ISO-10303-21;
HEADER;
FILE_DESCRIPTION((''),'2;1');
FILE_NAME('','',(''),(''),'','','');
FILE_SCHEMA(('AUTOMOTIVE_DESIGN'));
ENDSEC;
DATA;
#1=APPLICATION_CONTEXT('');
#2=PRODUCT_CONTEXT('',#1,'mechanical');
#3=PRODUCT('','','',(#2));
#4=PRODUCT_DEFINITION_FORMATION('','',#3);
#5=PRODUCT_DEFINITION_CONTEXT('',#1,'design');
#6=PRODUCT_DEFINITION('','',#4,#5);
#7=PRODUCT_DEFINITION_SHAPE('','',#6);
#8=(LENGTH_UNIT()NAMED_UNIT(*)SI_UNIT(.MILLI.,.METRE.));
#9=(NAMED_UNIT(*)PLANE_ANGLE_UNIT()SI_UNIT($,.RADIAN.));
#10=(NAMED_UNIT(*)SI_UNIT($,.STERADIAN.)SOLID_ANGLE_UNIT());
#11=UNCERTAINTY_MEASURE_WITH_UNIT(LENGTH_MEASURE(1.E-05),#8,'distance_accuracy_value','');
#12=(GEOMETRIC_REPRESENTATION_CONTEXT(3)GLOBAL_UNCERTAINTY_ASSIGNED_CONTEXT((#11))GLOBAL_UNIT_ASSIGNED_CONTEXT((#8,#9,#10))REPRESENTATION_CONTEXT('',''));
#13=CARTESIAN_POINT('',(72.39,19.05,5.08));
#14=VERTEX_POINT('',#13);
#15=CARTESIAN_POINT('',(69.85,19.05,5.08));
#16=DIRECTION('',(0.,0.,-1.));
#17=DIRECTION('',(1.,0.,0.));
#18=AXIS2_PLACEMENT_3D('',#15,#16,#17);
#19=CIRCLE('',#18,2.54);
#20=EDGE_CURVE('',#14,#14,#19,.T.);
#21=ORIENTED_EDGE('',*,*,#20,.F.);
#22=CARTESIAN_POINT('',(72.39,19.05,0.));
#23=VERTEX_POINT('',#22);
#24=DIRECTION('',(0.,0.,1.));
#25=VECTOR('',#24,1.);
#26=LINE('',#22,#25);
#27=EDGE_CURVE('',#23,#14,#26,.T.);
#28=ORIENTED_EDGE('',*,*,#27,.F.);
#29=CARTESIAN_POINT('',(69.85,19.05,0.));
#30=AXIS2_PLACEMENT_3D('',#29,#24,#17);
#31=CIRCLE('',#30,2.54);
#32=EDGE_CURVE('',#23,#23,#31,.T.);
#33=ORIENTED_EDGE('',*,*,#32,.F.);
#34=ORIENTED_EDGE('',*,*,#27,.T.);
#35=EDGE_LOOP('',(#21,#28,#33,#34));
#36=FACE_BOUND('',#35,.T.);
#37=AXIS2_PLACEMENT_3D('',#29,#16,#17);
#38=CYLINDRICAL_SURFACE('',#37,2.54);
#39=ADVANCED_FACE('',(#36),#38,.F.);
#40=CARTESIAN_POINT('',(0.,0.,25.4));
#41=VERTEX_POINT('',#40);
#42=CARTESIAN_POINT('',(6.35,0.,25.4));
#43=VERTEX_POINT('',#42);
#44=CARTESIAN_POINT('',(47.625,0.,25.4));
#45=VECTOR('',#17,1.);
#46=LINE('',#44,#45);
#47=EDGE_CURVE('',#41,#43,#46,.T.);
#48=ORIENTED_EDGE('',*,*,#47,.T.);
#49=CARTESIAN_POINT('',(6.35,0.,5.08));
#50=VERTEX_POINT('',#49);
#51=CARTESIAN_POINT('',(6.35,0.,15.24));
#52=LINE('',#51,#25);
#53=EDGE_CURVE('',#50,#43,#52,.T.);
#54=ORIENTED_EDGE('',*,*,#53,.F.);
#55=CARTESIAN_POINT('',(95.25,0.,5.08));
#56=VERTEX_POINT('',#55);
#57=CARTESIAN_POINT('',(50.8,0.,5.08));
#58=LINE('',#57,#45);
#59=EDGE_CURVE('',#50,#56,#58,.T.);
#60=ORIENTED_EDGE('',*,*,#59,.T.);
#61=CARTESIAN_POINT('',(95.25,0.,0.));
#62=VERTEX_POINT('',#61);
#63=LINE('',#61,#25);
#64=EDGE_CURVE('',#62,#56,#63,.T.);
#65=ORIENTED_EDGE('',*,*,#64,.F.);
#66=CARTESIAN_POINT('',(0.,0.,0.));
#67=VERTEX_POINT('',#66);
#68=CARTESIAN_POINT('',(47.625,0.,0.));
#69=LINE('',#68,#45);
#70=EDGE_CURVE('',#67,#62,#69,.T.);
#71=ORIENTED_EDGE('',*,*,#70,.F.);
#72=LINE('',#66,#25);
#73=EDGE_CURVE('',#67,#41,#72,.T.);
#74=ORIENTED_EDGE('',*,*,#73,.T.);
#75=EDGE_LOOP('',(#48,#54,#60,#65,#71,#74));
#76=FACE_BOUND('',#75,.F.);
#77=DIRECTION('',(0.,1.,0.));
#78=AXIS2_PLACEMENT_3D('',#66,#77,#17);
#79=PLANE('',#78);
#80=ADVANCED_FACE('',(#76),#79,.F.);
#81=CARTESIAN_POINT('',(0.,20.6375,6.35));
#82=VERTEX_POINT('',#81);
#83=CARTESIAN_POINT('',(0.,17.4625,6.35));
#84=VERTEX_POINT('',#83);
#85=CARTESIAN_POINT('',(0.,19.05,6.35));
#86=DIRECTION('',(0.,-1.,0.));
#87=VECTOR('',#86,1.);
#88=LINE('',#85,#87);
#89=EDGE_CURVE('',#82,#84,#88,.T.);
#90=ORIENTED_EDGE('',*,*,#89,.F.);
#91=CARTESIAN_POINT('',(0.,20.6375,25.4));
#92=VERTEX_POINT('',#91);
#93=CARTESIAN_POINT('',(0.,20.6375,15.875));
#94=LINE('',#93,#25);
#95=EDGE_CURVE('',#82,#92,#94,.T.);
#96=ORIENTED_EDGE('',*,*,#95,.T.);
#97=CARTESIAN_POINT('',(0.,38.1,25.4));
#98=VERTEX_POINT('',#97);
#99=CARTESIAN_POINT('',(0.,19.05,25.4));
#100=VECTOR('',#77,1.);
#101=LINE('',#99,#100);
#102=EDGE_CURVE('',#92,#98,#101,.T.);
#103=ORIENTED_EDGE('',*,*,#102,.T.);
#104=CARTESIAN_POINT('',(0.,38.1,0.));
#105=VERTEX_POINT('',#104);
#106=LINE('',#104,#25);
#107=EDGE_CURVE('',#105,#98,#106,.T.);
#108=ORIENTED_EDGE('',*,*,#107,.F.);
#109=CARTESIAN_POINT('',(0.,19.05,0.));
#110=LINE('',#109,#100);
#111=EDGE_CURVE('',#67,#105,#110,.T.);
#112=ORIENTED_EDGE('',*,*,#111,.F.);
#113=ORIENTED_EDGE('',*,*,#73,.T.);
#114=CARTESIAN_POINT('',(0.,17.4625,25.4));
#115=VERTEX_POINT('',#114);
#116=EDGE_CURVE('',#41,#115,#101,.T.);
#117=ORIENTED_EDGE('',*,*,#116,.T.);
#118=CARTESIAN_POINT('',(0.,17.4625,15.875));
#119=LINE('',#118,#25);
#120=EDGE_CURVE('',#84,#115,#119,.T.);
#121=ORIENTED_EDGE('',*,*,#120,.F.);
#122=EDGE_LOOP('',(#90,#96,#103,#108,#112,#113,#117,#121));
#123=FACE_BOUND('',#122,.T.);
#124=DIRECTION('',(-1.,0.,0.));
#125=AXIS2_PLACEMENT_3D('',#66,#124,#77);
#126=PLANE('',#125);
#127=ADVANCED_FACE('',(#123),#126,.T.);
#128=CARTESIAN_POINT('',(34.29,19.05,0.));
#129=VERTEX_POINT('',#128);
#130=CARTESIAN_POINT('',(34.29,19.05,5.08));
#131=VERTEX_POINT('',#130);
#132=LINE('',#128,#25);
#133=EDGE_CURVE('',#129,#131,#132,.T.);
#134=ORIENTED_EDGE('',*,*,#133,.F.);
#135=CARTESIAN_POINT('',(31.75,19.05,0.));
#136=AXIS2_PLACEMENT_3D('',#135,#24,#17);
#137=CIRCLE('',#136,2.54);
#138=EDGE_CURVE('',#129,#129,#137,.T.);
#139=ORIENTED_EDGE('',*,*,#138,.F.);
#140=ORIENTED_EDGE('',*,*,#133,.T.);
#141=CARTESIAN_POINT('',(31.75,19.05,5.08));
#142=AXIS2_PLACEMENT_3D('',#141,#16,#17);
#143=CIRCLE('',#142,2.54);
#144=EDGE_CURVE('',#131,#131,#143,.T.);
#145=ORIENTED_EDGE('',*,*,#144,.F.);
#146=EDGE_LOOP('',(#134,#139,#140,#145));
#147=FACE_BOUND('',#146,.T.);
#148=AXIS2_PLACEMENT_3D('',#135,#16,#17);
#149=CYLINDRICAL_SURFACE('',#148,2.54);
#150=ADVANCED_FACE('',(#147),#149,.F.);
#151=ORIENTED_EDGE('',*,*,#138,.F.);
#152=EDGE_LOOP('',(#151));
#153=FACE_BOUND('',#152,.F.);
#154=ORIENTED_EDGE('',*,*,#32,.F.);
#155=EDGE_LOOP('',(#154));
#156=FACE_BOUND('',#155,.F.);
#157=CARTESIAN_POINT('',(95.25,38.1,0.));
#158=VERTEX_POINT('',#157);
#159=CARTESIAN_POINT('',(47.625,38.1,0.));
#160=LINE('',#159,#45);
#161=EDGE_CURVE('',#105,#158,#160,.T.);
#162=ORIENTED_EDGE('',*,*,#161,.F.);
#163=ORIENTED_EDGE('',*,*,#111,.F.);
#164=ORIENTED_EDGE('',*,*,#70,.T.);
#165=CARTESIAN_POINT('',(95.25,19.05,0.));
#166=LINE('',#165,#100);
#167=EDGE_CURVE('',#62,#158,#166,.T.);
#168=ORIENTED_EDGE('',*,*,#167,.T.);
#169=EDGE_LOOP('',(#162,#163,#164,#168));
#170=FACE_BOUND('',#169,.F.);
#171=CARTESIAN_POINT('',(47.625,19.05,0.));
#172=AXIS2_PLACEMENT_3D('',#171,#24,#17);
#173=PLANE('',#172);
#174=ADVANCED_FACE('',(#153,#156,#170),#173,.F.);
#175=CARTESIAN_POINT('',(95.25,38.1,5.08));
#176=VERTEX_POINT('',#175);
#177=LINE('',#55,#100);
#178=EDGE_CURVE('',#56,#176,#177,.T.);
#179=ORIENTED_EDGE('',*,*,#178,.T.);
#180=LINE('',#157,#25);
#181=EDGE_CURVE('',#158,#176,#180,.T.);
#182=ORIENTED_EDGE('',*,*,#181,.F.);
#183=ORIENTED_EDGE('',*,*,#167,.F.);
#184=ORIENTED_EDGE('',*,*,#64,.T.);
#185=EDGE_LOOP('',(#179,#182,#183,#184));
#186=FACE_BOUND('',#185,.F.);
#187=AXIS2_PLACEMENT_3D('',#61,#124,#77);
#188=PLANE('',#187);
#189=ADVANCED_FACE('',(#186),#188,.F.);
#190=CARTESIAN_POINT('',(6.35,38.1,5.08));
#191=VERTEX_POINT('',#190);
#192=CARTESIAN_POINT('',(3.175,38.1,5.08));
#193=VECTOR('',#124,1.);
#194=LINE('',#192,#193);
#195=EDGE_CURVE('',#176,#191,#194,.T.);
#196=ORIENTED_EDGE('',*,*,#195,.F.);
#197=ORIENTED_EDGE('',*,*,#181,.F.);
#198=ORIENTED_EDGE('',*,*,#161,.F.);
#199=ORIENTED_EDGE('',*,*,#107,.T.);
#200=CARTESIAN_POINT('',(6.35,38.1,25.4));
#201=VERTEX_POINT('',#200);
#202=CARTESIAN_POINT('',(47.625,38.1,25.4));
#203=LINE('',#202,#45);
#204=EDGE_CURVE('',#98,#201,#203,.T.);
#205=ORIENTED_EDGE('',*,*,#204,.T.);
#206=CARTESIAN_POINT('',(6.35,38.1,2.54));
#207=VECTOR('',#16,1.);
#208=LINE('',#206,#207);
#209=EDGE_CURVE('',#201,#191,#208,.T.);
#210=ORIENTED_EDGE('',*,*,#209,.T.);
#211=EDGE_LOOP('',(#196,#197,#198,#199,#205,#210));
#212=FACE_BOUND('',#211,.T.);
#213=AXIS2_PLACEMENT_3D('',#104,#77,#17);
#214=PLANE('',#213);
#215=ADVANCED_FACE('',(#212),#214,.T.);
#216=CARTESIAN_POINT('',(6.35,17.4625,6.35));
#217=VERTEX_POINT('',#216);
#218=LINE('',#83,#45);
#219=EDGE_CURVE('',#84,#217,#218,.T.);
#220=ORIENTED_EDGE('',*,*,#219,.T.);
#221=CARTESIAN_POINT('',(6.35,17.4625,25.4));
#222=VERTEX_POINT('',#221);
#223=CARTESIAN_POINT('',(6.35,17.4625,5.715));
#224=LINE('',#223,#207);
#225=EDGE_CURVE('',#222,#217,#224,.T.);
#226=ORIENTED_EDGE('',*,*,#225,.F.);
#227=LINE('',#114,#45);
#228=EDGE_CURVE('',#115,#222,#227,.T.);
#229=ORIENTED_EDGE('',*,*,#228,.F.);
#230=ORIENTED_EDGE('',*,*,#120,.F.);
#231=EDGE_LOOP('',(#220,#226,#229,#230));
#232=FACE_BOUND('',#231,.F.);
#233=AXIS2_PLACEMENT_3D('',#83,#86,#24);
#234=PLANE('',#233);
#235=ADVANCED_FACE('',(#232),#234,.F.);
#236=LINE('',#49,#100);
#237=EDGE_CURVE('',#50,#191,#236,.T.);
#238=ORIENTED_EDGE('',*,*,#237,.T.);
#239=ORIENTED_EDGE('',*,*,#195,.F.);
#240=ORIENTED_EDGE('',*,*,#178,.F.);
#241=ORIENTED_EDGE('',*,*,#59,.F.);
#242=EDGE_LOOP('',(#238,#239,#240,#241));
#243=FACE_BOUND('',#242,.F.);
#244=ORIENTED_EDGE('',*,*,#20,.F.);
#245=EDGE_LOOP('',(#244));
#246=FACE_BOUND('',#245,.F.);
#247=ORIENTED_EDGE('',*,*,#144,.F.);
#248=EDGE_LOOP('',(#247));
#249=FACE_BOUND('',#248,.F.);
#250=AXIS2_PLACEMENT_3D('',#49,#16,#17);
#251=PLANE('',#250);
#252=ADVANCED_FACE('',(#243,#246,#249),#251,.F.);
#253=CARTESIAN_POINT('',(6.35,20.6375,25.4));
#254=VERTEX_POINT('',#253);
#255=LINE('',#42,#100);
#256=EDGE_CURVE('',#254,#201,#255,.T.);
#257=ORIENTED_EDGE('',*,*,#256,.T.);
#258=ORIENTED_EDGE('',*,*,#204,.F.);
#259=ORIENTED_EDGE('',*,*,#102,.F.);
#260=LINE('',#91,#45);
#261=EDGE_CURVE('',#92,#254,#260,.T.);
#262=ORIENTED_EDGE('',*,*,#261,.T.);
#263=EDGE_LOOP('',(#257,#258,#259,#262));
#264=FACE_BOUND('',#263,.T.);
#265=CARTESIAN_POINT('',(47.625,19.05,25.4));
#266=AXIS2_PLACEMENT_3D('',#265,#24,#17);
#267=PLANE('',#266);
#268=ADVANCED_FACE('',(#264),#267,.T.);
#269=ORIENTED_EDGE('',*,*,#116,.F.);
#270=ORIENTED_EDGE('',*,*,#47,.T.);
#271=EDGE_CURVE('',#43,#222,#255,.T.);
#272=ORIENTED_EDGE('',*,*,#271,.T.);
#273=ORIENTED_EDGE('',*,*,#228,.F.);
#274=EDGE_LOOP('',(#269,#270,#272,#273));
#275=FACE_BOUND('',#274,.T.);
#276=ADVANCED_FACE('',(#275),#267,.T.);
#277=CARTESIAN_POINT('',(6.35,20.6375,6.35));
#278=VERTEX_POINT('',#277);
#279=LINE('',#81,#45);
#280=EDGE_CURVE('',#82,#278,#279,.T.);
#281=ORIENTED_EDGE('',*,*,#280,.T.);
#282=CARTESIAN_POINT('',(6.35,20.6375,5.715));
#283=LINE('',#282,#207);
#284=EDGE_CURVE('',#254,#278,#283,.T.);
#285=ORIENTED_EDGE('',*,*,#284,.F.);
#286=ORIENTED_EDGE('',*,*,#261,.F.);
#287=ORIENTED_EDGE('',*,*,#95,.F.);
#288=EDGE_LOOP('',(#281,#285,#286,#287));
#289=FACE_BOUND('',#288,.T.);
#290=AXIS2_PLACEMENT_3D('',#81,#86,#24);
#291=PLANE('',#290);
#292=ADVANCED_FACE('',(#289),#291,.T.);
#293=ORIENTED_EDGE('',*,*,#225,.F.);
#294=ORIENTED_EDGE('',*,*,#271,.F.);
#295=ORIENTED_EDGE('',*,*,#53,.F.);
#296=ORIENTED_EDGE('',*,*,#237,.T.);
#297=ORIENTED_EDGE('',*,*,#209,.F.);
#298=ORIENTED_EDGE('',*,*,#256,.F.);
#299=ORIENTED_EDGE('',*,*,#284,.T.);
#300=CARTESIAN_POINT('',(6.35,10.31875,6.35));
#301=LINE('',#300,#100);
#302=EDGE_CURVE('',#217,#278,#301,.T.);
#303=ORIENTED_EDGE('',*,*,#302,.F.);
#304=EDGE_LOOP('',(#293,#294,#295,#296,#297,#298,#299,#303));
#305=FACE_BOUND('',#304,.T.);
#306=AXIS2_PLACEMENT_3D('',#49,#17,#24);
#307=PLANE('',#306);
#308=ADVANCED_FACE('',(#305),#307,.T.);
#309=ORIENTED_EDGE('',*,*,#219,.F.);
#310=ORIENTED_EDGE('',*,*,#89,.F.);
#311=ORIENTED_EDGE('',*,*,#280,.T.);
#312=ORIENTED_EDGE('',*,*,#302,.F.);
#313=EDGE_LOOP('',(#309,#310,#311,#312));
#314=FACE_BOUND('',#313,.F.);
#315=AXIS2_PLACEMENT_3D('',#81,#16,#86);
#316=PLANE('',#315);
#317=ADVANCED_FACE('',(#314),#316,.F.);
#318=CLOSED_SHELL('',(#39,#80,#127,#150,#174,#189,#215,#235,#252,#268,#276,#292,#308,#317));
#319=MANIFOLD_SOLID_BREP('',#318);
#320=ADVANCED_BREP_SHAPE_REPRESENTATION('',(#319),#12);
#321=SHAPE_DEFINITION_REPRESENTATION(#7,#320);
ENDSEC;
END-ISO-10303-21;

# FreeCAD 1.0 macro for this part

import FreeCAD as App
import Part
import Sketcher

V = App.Vector
Q = App.Units.Quantity


def add_polygon(sketch, points):
    """Adds a closed chain of lines whose ends are joined by coincident constraints."""
    first, n = sketch.GeometryCount, len(points)
    for a, b in zip(points, points[1:] + points[:1]):
        sketch.addGeometry(Part.LineSegment(App.Vector(*a, 0), App.Vector(*b, 0)), False)
    for i in range(n):
        sketch.addConstraint(Sketcher.Constraint("Coincident", first + i, 2, first + (i + 1) % n, 1))

doc = App.newDocument("Part")
body = doc.addObject("PartDesign::Body", "Body")

# Sketch on XY plane
sketch1 = body.newObject("Sketcher::SketchObject", "Sketch")
sketch1.AttachmentSupport = (doc.getObject("XY_Plane"), [""])
sketch1.MapMode = "FlatFace"
add_polygon(sketch1, [(0, 38.1), (0, 0), (95.2, 0), (95.2, 38.1)])  # lines 0-3
sketch1.addGeometry(Part.Circle(V(31.8, 19.1, 0), V(0, 0, 1), 2.5), False)  # 4
sketch1.addGeometry(Part.Circle(V(69.8, 19.1, 0), V(0, 0, 1), 2.5), False)  # 5
sketch1.addConstraint([
    Sketcher.Constraint("Vertical", 0),
    Sketcher.Constraint("Horizontal", 1),
    Sketcher.Constraint("Vertical", 2),
    Sketcher.Constraint("Horizontal", 3),
    Sketcher.Constraint("Coincident", 0, 2, -1, 1),
    Sketcher.Constraint("Equal", 4, 5),
    Sketcher.Constraint("Horizontal", 4, 3, 5, 3),
    Sketcher.Constraint("Diameter", 4, Q("0.2 in")),
    Sketcher.Constraint("DistanceY", 0, 2, 0, 1, Q("1.5 in")),
    Sketcher.Constraint("DistanceX", 5, 3, 1, 2, Q("1 in")),
    Sketcher.Constraint("DistanceX", 1, 1, 1, 2, Q("3.75 in")),
    Sketcher.Constraint("DistanceX", 4, 3, 5, 3, Q("1.5 in")),
    Sketcher.Constraint("DistanceY", -1, 1, 4, 3, Q("0.75 in")),
])
pad1 = body.newObject("PartDesign::Pad", "Pad")
pad1.Profile = sketch1
pad1.Length = Q("1 in")

# Sketch on XZ plane
sketch2 = body.newObject("Sketcher::SketchObject", "Sketch001")
sketch2.AttachmentSupport = (doc.getObject("XZ_Plane"), [""])
sketch2.MapMode = "FlatFace"
add_polygon(sketch2, [(6, 25), (6, 5), (95, 5), (95, 25)])  # lines 0-3
sketch2.addConstraint([
    Sketcher.Constraint("Vertical", 0),
    Sketcher.Constraint("Horizontal", 1),
    Sketcher.Constraint("Vertical", 2),
    Sketcher.Constraint("Horizontal", 3),
    Sketcher.Constraint("DistanceX", 1, 1, 1, 2, Q("3.5 in")),
    Sketcher.Constraint("DistanceY", 0, 2, 0, 1, Q("0.8 in")),
    Sketcher.Constraint("DistanceY", -1, 1, 2, 2, Q("1 in")),
    Sketcher.Constraint("DistanceX", -1, 1, 0, 2, Q("0.25 in")),
])
pocket1 = body.newObject("PartDesign::Pocket", "Pocket")
pocket1.Profile = sketch2
pocket1.Type = "ThroughAll"

# Sketch on YZ plane
sketch3 = body.newObject("Sketcher::SketchObject", "Sketch002")
sketch3.AttachmentSupport = (doc.getObject("YZ_Plane"), [""])
sketch3.MapMode = "FlatFace"
add_polygon(sketch3, [(20.6, 25.4), (20.6, 6.3), (17.5, 6.3), (17.5, 25.4)])  # lines 0-3
sketch3.addConstraint([
    Sketcher.Constraint("Vertical", 0),
    Sketcher.Constraint("Horizontal", 1),
    Sketcher.Constraint("Vertical", 2),
    Sketcher.Constraint("Horizontal", 3),
    Sketcher.Constraint("DistanceY", -1, 1, 2, 2, Q("1 in")),
    Sketcher.Constraint("DistanceY", 0, 2, 0, 1, Q("0.75 in")),
    Sketcher.Constraint("DistanceX", 1, 2, 1, 1, Q("0.125 in")),
    Sketcher.Constraint("DistanceX", -1, 1, 0, 2, Q("0.8125 in")),
])
pocket2 = body.newObject("PartDesign::Pocket", "Pocket001")
pocket2.Profile = sketch3
pocket2.Length = Q("1 in")
pocket2.Reversed = True

doc.recompute()
